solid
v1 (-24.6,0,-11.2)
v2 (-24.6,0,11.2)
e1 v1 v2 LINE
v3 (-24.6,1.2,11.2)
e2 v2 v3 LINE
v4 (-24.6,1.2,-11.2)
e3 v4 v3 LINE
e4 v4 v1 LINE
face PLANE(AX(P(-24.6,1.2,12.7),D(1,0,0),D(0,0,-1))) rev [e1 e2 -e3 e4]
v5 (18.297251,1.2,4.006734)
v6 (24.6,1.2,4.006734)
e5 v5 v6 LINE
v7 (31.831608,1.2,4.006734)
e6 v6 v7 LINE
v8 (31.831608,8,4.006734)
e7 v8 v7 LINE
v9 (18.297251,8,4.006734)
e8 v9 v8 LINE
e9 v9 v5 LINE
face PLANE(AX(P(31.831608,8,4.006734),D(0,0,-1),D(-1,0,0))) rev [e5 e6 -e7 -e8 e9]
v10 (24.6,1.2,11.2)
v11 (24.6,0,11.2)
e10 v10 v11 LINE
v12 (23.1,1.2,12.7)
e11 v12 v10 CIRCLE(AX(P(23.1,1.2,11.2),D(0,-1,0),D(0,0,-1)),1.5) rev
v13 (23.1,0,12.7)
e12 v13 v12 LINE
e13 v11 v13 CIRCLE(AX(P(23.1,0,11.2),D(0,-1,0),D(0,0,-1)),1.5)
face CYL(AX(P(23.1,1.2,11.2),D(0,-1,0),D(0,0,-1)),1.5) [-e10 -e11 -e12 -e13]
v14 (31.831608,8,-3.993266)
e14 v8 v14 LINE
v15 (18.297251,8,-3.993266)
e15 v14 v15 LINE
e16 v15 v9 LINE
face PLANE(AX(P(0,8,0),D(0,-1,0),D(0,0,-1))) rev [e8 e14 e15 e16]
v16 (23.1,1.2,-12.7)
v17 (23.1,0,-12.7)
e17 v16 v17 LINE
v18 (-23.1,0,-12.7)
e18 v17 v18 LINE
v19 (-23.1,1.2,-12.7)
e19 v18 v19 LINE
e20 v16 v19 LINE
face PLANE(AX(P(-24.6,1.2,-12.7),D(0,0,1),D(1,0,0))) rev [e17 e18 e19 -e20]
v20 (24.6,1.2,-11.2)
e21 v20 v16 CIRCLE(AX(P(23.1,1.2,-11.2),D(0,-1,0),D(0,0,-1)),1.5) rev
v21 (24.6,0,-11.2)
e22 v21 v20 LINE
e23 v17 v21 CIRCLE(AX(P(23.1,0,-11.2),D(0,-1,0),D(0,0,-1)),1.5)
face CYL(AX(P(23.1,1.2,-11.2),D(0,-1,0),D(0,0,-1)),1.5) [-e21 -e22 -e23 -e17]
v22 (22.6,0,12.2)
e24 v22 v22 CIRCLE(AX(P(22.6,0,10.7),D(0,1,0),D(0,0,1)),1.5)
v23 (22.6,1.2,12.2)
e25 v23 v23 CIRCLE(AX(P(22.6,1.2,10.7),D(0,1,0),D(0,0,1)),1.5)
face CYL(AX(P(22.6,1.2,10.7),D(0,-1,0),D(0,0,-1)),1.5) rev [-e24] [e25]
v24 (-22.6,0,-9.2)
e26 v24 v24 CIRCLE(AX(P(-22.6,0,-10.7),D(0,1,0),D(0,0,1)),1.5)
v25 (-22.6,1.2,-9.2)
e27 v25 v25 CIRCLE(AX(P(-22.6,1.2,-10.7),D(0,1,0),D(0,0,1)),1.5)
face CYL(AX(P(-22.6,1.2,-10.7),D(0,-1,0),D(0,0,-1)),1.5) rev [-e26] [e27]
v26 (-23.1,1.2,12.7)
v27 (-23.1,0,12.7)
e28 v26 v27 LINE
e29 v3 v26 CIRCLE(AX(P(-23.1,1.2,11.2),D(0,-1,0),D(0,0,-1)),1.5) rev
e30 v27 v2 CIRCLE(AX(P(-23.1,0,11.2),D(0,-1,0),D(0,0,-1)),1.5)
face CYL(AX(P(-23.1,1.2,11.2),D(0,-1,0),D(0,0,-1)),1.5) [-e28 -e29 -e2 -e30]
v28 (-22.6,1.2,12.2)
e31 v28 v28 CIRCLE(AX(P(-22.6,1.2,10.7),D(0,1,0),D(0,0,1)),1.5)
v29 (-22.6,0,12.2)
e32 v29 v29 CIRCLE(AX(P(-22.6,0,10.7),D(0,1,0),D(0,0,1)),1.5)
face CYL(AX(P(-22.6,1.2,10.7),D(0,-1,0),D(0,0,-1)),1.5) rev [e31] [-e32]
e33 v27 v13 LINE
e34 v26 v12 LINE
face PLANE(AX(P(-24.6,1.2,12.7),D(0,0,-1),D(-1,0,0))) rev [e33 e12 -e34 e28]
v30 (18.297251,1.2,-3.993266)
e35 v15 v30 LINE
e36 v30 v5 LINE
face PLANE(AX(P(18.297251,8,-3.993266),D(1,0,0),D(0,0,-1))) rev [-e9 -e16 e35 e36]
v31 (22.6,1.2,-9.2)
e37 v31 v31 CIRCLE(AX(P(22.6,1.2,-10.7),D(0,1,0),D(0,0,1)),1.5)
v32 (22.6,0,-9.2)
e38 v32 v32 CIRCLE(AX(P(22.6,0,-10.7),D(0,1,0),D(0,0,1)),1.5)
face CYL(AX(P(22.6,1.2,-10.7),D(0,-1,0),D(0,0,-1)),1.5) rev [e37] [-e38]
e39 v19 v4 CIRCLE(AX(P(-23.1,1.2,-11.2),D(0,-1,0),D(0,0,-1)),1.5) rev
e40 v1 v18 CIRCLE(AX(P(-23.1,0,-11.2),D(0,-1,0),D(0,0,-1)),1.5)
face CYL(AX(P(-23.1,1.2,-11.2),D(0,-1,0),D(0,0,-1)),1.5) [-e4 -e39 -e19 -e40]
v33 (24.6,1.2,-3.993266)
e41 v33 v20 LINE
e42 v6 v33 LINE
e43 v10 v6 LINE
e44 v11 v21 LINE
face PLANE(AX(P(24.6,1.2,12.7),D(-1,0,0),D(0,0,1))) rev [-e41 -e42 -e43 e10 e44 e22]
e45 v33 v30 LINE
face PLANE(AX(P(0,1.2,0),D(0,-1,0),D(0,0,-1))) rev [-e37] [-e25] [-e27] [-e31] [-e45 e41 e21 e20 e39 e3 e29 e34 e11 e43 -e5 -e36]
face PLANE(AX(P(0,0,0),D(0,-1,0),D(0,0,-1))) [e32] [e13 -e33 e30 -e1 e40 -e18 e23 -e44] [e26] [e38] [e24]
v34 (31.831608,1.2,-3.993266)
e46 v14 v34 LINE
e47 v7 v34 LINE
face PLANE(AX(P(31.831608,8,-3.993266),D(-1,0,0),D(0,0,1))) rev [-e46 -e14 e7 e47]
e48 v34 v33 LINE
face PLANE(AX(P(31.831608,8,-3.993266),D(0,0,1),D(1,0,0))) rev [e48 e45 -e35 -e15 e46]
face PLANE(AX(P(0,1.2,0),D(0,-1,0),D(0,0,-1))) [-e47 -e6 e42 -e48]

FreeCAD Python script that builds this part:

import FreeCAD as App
import Part
import Sketcher

V = App.Vector
Q = App.Units.Quantity


def edges_at(feature, points):
    """Names of the edges that pass closest to the given points."""
    edges = feature.Shape.Edges
    near = lambda p: min(range(len(edges)), key=lambda i: edges[i].distToShape(Part.Vertex(*p))[0])
    return sorted({f"Edge{near(p) + 1}" for p in points})


def add_polygon(sketch, points):
    """Adds a closed chain of lines whose ends are joined by coincident constraints."""
    first, n = sketch.GeometryCount, len(points)
    for a, b in zip(points, points[1:] + points[:1]):
        sketch.addGeometry(Part.LineSegment(App.Vector(*a, 0), App.Vector(*b, 0)), False)
    for i in range(n):
        sketch.addConstraint(Sketcher.Constraint("Coincident", first + i, 2, first + (i + 1) % n, 1))

doc = App.newDocument("Part")
body = doc.addObject("PartDesign::Body", "Body")

sketch1 = body.newObject("Sketcher::SketchObject", "Sketch")
sketch1.AttachmentSupport = (doc.getObject("XZ_Plane"), [""])
sketch1.MapMode = "FlatFace"
add_polygon(sketch1, [(-24.6, -12.7), (-24.6, 12.7), (24.6, 12.7), (24.6, -12.7)])
sketch1.addGeometry(Part.Circle(V(-22.6, 10.7, 0), V(0, 0, 1), 1.5), False)
sketch1.addGeometry(Part.Circle(V(22.6, 10.7, 0), V(0, 0, 1), 1.5), False)
sketch1.addGeometry(Part.Circle(V(-22.6, -10.7, 0), V(0, 0, 1), 1.5), False)
sketch1.addGeometry(Part.Circle(V(22.6, -10.7, 0), V(0, 0, 1), 1.5), False)
sketch1.addConstraint([
    Sketcher.Constraint("Vertical", 0),
    Sketcher.Constraint("Horizontal", 1),
    Sketcher.Constraint("Vertical", 2),
    Sketcher.Constraint("Horizontal", 3),
    Sketcher.Constraint("Equal", 4, 5),
    Sketcher.Constraint("Equal", 5, 6),
    Sketcher.Constraint("Equal", 6, 7),
    Sketcher.Constraint("Symmetric", 5, 3, 6, 3, -1, 1),
    Sketcher.Constraint("Symmetric", 4, 3, 7, 3, -1, 1),
    Sketcher.Constraint("Symmetric", 0, 2, 2, 2, -1, 1),
    Sketcher.Constraint("Symmetric", 4, 3, 5, 3, -2),
    Sketcher.Constraint("Diameter", 4, Q("3 mm")),
    Sketcher.Constraint("DistanceX", 1, 1, 1, 2, Q("49.2 mm")),
    Sketcher.Constraint("DistanceY", 0, 1, 0, 2, Q("25.4 mm")),
    Sketcher.Constraint("DistanceX", 0, 2, 4, 3, Q("2 mm")),
    Sketcher.Constraint("DistanceY", 4, 3, 0, 2, Q("2 mm")),
])
pad1 = body.newObject("PartDesign::Pad", "Pad")
pad1.Profile = sketch1
pad1.Length = 1.2
pad1.Reversed = True
doc.recompute()

fillet = body.newObject("PartDesign::Fillet", "Fillet")
fillet.Base = (pad1, edges_at(pad1, [(24.6, 0.6, 12.7)]))
fillet.Radius = 1.5
doc.recompute()

fillet2 = body.newObject("PartDesign::Fillet", "Fillet001")
fillet2.Base = (fillet, edges_at(fillet, [(-24.6, 0.6, 12.7)]))
fillet2.Radius = 1.5
doc.recompute()

fillet3 = body.newObject("PartDesign::Fillet", "Fillet002")
fillet3.Base = (fillet2, edges_at(fillet2, [(24.6, 0.6, -12.7)]))
fillet3.Radius = 1.5
doc.recompute()

fillet4 = body.newObject("PartDesign::Fillet", "Fillet003")
fillet4.Base = (fillet3, edges_at(fillet3, [(-24.6, 0.6, -12.7)]))
fillet4.Radius = 1.5

sketch2 = body.newObject("Sketcher::SketchObject", "Sketch001")
sketch2.AttachmentSupport = (doc.getObject("XZ_Plane"), [""])
sketch2.MapMode = "FlatFace"
sketch2.AttachmentOffset = App.Placement(V(0, 0, -1.2), App.Rotation())
add_polygon(sketch2, [(18.297251, -3.993266), (18.297251, 4.006734), (31.831608, 4.006734), (31.831608, -3.993266)])
sketch2.addConstraint([
    Sketcher.Constraint("Vertical", 0),
    Sketcher.Constraint("Horizontal", 1),
    Sketcher.Constraint("Vertical", 2),
    Sketcher.Constraint("Horizontal", 3),
    Sketcher.Constraint("DistanceY", 0, 1, 0, 2, Q("8 mm")),
    Sketcher.Constraint("DistanceX", 1, 1, 1, 2, Q("13.534357 mm")),
    Sketcher.Constraint("DistanceX", -1, 1, 0, 2, Q("18.297251 mm")),
    Sketcher.Constraint("DistanceY", -1, 1, 0, 2, Q("4.006734 mm")),
])
pad2 = body.newObject("PartDesign::Pad", "Pad001")
pad2.Profile = sketch2
pad2.Length = 6.8
pad2.Reversed = True

doc.recompute()
